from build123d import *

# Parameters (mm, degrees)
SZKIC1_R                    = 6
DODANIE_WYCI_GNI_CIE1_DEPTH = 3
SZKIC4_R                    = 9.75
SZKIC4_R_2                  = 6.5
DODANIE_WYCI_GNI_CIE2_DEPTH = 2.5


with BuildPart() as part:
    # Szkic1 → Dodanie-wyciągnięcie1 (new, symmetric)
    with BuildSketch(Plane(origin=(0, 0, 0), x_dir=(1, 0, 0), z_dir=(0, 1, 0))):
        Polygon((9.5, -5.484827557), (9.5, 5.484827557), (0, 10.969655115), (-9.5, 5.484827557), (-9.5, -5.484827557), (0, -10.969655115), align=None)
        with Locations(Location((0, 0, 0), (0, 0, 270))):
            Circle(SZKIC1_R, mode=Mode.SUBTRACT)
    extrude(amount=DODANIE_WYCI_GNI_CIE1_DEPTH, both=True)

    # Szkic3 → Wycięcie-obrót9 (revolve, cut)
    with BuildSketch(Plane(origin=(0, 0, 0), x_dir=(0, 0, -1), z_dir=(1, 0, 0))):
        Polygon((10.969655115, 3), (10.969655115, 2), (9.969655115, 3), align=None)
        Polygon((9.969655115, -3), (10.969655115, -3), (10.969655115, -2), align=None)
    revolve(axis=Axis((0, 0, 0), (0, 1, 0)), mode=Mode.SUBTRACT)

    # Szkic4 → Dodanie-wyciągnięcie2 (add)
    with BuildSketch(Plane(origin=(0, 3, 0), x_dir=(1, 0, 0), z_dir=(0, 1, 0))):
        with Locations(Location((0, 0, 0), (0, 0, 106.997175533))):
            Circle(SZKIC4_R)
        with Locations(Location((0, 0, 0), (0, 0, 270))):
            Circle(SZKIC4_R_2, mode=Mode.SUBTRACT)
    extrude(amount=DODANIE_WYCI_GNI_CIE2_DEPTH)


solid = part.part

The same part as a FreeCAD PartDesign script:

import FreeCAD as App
import Part
import Sketcher
Q = App.Units.Quantity

doc = App.newDocument("Part")
body = doc.addObject("PartDesign::Body", "Body")

# Sketch on XZ plane
sketch1 = body.newObject("Sketcher::SketchObject", "Sketch")
sketch1.AttachmentSupport = (doc.getObject("XZ_Plane"), [""])
sketch1.MapMode = "FlatFace"
sketch1.addGeometry(Part.LineSegment(App.Vector(10, 5, 0), App.Vector(10, -5, 0)), False)
sketch1.addGeometry(Part.LineSegment(App.Vector(10, -5, 0), App.Vector(0, -11, 0)), False)
sketch1.addGeometry(Part.LineSegment(App.Vector(0, -11, 0), App.Vector(-10, -5, 0)), False)
sketch1.addGeometry(Part.LineSegment(App.Vector(-10, -5, 0), App.Vector(-10, 5, 0)), False)
sketch1.addGeometry(Part.LineSegment(App.Vector(-10, 5, 0), App.Vector(0, 11, 0)), False)
sketch1.addGeometry(Part.LineSegment(App.Vector(0, 11, 0), App.Vector(10, 5, 0)), False)
sketch1.addGeometry(Part.Circle(App.Vector(0, 0, 0), App.Vector(0, 0, 1), 6), False)
sketch1.addConstraint(Sketcher.Constraint("Coincident", 0, 2, 1, 1))
sketch1.addConstraint(Sketcher.Constraint("Coincident", 1, 2, 2, 1))
sketch1.addConstraint(Sketcher.Constraint("Coincident", 2, 2, 3, 1))
sketch1.addConstraint(Sketcher.Constraint("Coincident", 3, 2, 4, 1))
sketch1.addConstraint(Sketcher.Constraint("Coincident", 4, 2, 5, 1))
sketch1.addConstraint(Sketcher.Constraint("Coincident", 5, 2, 0, 1))
sketch1.addConstraint(Sketcher.Constraint("Vertical", 0))
sketch1.addConstraint(Sketcher.Constraint("Vertical", 3))
sketch1.addConstraint(Sketcher.Constraint("Coincident", 6, 3, -1, 1))
sketch1.addConstraint(Sketcher.Constraint("Symmetric", 0, 2, 3, 2, -1, 1))
sketch1.addConstraint(Sketcher.Constraint("Symmetric", 1, 2, 4, 2, -1, 1))
sketch1.addConstraint(Sketcher.Constraint("PointOnObject", 1, 2, -2))
sketch1.addConstraint(Sketcher.Constraint("Parallel", 2, 5))
sketch1.addConstraint(Sketcher.Constraint("Horizontal", 0, 2, 2, 2))
sketch1.addConstraint(Sketcher.Constraint("Diameter", 6, 12.0))
sketch1.addConstraint(Sketcher.Constraint("Angle", 1, Q("-150 deg")))
sketch1.addConstraint(Sketcher.Constraint("DistanceX", 2, 2, 0, 2, 19.0))
sketch1.addConstraint(Sketcher.Constraint("DistanceY", 0, 2, 0, 1, 10.969655))
pad1 = body.newObject("PartDesign::Pad", "Pad")
pad1.Profile = sketch1
pad1.Length = 6
pad1.Midplane = True

# Sketch on YZ plane
sketch2 = body.newObject("Sketcher::SketchObject", "Sketch001")
sketch2.AttachmentSupport = (doc.getObject("YZ_Plane"), [""])
sketch2.MapMode = "FlatFace"
sketch2.addGeometry(Part.LineSegment(App.Vector(2, -11, 0), App.Vector(3, -11, 0)), False)
sketch2.addGeometry(Part.LineSegment(App.Vector(3, -11, 0), App.Vector(3, -10, 0)), False)
sketch2.addGeometry(Part.LineSegment(App.Vector(3, -10, 0), App.Vector(2, -11, 0)), False)
sketch2.addGeometry(Part.LineSegment(App.Vector(-3, -10, 0), App.Vector(-3, -11, 0)), False)
sketch2.addGeometry(Part.LineSegment(App.Vector(-3, -11, 0), App.Vector(-2, -11, 0)), False)
sketch2.addGeometry(Part.LineSegment(App.Vector(-2, -11, 0), App.Vector(-3, -10, 0)), False)
sketch2.addConstraint(Sketcher.Constraint("Coincident", 0, 2, 1, 1))
sketch2.addConstraint(Sketcher.Constraint("Coincident", 1, 2, 2, 1))
sketch2.addConstraint(Sketcher.Constraint("Coincident", 2, 2, 0, 1))
sketch2.addConstraint(Sketcher.Constraint("Coincident", 3, 2, 4, 1))
sketch2.addConstraint(Sketcher.Constraint("Coincident", 4, 2, 5, 1))
sketch2.addConstraint(Sketcher.Constraint("Coincident", 5, 2, 3, 1))
sketch2.addConstraint(Sketcher.Constraint("Horizontal", 0))
sketch2.addConstraint(Sketcher.Constraint("Vertical", 1))
sketch2.addConstraint(Sketcher.Constraint("Vertical", 3))
sketch2.addConstraint(Sketcher.Constraint("Horizontal", 4))
sketch2.addConstraint(Sketcher.Constraint("Symmetric", 0, 2, 3, 2, -2))
sketch2.addConstraint(Sketcher.Constraint("Perpendicular", 2, 5))
sketch2.addConstraint(Sketcher.Constraint("Horizontal", 1, 2, 5, 2))
sketch2.addConstraint(Sketcher.Constraint("Equal", 0, 4))
sketch2.addConstraint(Sketcher.Constraint("DistanceX", 0, 1, 0, 2, 1.0))
sketch2.addConstraint(Sketcher.Constraint("DistanceX", -1, 1, 0, 2, 3.0))
sketch2.addConstraint(Sketcher.Constraint("DistanceY", 0, 2, -1, 1, 10.969655))
groove = body.newObject("PartDesign::Groove", "Groove")
groove.Profile = sketch2
groove.ReferenceAxis = (sketch2, ["H_Axis"])
groove.Angle = 360

# Sketch on XZ plane
sketch3 = body.newObject("Sketcher::SketchObject", "Sketch002")
sketch3.AttachmentSupport = (doc.getObject("XZ_Plane"), [""])
sketch3.MapMode = "FlatFace"
sketch3.AttachmentOffset = App.Placement(App.Vector(0, 0, -3), App.Rotation())
sketch3.addGeometry(Part.Circle(App.Vector(0, 0, 0), App.Vector(0, 0, 1), 10), False)
sketch3.addGeometry(Part.Circle(App.Vector(0, 0, 0), App.Vector(0, 0, 1), 6), False)
sketch3.addConstraint(Sketcher.Constraint("Coincident", 0, 3, -1, 1))
sketch3.addConstraint(Sketcher.Constraint("Coincident", 1, 3, -1, 1))
sketch3.addConstraint(Sketcher.Constraint("Diameter", 1, 13.0))
sketch3.addConstraint(Sketcher.Constraint("Diameter", 0, 19.5))
pad2 = body.newObject("PartDesign::Pad", "Pad001")
pad2.Profile = sketch3
pad2.Length = 2.5
pad2.Reversed = True

doc.recompute()
